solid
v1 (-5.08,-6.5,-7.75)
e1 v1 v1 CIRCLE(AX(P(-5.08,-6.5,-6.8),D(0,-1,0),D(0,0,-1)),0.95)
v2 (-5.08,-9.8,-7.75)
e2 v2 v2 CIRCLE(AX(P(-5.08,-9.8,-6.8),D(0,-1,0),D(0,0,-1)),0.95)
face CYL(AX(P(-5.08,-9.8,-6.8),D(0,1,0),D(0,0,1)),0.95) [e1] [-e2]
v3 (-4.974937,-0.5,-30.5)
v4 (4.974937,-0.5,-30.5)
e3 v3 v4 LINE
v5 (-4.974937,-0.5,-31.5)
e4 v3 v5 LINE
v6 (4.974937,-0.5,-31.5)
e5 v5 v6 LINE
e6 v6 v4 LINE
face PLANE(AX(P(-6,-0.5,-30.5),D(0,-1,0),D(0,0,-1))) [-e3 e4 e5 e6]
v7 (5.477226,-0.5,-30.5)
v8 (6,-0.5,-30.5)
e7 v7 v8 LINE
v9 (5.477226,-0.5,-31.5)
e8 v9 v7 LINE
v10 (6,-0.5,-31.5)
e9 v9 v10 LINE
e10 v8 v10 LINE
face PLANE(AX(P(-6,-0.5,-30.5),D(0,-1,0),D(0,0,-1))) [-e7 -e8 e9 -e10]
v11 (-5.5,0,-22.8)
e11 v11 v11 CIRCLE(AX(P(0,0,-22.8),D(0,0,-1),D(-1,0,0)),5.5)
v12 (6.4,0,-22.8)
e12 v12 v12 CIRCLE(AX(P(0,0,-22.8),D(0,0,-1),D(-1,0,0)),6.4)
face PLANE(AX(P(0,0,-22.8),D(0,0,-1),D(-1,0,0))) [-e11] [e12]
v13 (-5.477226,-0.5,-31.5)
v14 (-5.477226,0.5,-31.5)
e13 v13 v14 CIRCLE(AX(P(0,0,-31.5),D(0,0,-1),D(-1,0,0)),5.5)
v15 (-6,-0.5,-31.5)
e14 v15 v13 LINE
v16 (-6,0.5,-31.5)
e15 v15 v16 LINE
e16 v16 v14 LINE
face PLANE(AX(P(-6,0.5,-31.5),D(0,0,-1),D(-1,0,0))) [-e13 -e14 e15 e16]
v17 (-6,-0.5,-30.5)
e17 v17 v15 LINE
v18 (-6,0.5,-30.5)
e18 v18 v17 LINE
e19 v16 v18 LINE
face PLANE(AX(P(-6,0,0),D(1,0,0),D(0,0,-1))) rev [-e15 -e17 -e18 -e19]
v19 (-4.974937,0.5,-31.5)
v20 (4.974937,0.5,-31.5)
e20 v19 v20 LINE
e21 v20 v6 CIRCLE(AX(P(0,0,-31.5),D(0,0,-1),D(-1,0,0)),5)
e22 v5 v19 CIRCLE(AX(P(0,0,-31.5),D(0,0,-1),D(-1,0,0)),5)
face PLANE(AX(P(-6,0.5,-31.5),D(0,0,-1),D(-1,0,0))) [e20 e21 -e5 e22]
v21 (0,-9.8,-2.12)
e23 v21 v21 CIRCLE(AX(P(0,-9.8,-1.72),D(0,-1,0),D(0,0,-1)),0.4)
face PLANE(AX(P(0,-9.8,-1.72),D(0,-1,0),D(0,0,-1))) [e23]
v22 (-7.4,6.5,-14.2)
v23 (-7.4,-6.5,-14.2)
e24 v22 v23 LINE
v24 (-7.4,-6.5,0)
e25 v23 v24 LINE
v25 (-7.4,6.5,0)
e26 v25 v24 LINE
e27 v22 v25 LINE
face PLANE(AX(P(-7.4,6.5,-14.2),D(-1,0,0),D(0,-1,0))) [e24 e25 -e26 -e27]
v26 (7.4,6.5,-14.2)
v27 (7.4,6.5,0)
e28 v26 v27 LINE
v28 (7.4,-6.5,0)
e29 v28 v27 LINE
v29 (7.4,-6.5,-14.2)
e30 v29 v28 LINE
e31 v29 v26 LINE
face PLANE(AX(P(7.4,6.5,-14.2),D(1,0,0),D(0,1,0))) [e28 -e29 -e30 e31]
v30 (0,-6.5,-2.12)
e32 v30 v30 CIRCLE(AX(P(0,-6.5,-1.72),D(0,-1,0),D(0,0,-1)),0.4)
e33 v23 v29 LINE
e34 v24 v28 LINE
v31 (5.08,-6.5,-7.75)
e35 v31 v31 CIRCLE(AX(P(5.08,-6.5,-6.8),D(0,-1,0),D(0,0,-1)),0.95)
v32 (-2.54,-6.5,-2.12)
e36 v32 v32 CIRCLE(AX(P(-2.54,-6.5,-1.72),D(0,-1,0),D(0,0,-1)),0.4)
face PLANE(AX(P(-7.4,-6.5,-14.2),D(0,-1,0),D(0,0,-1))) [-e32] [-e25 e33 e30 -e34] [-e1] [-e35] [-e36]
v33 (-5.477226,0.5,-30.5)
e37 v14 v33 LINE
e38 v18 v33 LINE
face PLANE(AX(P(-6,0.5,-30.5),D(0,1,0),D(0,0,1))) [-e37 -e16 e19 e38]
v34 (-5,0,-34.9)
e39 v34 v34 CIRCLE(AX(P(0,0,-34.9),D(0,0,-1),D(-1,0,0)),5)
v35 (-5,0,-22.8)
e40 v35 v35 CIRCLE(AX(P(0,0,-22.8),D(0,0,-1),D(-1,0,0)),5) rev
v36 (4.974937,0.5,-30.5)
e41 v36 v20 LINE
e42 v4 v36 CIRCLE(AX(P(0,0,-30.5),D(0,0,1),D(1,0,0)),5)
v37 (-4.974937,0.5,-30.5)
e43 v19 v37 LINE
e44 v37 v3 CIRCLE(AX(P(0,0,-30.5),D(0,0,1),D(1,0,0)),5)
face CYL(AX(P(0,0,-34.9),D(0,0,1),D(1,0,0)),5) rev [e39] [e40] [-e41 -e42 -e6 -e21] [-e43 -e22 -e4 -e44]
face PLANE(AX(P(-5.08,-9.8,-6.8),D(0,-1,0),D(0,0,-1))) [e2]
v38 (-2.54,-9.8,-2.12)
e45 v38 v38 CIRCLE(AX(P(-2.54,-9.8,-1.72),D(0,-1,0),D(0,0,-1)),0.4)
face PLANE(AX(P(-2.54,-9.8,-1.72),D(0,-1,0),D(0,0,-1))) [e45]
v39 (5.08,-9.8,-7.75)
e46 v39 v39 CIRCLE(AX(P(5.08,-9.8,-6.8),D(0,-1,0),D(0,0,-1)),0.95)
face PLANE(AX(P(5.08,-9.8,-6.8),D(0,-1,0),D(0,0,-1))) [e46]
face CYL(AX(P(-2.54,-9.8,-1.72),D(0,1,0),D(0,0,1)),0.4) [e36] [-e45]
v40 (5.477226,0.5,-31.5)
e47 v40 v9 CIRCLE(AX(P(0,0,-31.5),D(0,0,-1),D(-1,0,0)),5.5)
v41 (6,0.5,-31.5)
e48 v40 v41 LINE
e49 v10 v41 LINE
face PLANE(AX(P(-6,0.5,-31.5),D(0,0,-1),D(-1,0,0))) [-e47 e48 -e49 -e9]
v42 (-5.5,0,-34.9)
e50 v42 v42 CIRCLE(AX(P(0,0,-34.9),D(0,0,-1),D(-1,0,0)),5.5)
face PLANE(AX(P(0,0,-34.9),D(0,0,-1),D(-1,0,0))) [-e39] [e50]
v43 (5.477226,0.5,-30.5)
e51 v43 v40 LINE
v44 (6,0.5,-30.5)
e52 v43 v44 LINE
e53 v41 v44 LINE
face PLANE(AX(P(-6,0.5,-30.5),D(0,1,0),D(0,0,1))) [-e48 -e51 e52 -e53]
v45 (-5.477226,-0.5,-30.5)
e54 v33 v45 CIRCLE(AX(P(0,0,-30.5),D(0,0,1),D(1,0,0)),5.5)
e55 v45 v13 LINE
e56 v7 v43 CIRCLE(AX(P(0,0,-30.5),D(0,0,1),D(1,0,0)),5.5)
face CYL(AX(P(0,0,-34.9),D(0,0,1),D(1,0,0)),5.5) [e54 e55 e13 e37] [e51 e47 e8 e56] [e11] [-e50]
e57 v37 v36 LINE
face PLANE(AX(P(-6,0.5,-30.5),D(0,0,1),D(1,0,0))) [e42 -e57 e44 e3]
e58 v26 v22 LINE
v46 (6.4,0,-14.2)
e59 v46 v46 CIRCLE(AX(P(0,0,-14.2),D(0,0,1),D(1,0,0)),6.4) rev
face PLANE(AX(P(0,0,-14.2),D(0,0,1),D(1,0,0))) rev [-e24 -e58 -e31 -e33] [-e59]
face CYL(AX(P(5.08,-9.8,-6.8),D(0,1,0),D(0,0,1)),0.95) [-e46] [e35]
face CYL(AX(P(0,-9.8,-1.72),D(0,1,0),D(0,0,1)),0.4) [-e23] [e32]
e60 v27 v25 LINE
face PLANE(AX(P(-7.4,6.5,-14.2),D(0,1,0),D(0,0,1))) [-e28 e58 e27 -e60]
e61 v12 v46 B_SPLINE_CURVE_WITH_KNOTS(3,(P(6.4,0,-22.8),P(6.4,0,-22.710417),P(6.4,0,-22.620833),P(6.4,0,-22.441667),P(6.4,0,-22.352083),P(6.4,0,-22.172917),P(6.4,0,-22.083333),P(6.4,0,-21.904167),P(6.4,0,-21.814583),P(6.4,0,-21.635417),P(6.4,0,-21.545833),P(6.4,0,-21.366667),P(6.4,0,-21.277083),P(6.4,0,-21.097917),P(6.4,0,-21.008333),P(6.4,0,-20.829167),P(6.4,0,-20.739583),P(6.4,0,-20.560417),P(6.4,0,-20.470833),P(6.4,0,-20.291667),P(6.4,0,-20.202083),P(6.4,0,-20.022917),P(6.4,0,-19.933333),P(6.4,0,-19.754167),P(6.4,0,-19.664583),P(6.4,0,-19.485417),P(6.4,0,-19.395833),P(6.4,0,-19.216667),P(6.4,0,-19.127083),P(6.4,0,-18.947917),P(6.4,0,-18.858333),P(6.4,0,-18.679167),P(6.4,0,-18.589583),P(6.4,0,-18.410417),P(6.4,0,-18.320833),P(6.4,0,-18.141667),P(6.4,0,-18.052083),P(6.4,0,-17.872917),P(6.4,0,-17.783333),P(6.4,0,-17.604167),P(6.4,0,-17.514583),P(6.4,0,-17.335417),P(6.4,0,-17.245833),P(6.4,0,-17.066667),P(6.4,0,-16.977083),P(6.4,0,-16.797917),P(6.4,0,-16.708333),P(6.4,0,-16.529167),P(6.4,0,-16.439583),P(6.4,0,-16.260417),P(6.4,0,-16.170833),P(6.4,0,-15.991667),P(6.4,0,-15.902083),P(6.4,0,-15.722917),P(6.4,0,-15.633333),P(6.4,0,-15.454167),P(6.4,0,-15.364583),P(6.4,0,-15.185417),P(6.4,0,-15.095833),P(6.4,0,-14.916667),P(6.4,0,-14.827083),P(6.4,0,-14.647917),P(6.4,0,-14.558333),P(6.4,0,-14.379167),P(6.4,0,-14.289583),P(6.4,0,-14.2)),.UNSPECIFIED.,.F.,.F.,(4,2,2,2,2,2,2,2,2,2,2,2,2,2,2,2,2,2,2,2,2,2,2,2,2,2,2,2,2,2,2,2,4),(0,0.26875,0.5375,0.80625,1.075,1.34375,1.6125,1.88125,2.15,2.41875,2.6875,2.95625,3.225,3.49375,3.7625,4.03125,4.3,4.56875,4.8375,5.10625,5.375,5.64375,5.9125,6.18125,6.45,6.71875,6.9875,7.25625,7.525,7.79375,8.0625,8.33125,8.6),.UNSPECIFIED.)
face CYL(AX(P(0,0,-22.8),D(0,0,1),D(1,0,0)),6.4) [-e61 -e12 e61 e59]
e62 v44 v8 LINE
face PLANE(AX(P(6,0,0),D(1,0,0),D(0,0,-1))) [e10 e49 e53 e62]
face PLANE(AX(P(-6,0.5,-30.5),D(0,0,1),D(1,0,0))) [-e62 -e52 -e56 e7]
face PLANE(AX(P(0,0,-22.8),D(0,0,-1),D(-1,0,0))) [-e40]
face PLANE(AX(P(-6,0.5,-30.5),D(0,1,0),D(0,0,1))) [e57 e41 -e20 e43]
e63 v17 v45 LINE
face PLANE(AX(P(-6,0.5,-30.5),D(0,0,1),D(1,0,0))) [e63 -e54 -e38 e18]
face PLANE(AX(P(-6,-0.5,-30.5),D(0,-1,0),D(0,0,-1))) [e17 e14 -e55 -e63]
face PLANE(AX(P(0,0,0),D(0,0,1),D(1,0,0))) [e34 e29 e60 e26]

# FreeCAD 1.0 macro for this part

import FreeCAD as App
import Part
import Sketcher
Q = App.Units.Quantity


def add_polygon(sketch, points):
    """Adds a closed chain of lines whose ends are joined by coincident constraints."""
    first, n = sketch.GeometryCount, len(points)
    for a, b in zip(points, points[1:] + points[:1]):
        sketch.addGeometry(Part.LineSegment(App.Vector(*a, 0), App.Vector(*b, 0)), False)
    for i in range(n):
        sketch.addConstraint(Sketcher.Constraint("Coincident", first + i, 2, first + (i + 1) % n, 1))

doc = App.newDocument("Part")
body = doc.addObject("PartDesign::Body", "Body")

sketch1 = doc.addObject("Sketcher::SketchObject", "Sketch")
body.addObject(sketch1)
sketch1.AttachmentSupport = (doc.XY_Plane, [""])
sketch1.MapMode = "FlatFace"
add_polygon(sketch1, [(-7, 6), (-7, -6), (7, -6), (7, 6)])
sketch1.addConstraint([
    Sketcher.Constraint("Vertical", 0),
    Sketcher.Constraint("Horizontal", 1),
    Sketcher.Constraint("Vertical", 2),
    Sketcher.Constraint("Horizontal", 3),
    Sketcher.Constraint("Symmetric", 0, 2, 2, 2, -1, 1),
    Sketcher.Constraint("DistanceY", 0, 2, 0, 1, Q("13 mm")),
    Sketcher.Constraint("DistanceX", 1, 1, 1, 2, Q("14.8 mm")),
])
pad1 = doc.addObject("PartDesign::Pad", "Pad")
body.addObject(pad1)
pad1.Profile = sketch1
pad1.Length = 14.2
pad1.Reversed = True

sketch2 = doc.addObject("Sketcher::SketchObject", "Sketch001")
body.addObject(sketch2)
sketch2.AttachmentSupport = (doc.XY_Plane, [""])
sketch2.MapMode = "FlatFace"
sketch2.AttachmentOffset = App.Placement(App.Vector(0, 0, -14.2), App.Rotation())
sketch2.addGeometry(Part.Circle(App.Vector(0, 0, 0), App.Vector(0, 0, 1), 6), False)
sketch2.addConstraint([
    Sketcher.Constraint("Coincident", 0, 3, -1, 1),
    Sketcher.Constraint("Diameter", 0, Q("12.8 mm")),
])
pad2 = doc.addObject("PartDesign::Pad", "Pad001")
body.addObject(pad2)
pad2.Profile = sketch2
pad2.Length = 8.6
pad2.Reversed = True

sketch3 = doc.addObject("Sketcher::SketchObject", "Sketch002")
body.addObject(sketch3)
sketch3.AttachmentSupport = (doc.XY_Plane, [""])
sketch3.MapMode = "FlatFace"
sketch3.AttachmentOffset = App.Placement(App.Vector(0, 0, -22.8), App.Rotation())
sketch3.addGeometry([
    Part.Circle(App.Vector(0, 0, 0), App.Vector(0, 0, 1), 6),
    Part.Circle(App.Vector(0, 0, 0), App.Vector(0, 0, 1), 5),
], False)
sketch3.addConstraint([
    Sketcher.Constraint("Coincident", 0, 3, -1, 1),
    Sketcher.Constraint("Coincident", 1, 3, -1, 1),
    Sketcher.Constraint("Diameter", 0, Q("11 mm")),
    Sketcher.Constraint("Diameter", 1, Q("10 mm")),
])
pad3 = doc.addObject("PartDesign::Pad", "Pad002")
body.addObject(pad3)
pad3.Profile = sketch3
pad3.Length = 12.1
pad3.Reversed = True

sketch4 = doc.addObject("Sketcher::SketchObject", "Sketch003")
body.addObject(sketch4)
sketch4.AttachmentSupport = (doc.YZ_Plane, [""])
sketch4.MapMode = "FlatFace"
add_polygon(sketch4, [(0.5, -30.5), (-0.5, -30.5), (-0.5, -31.5), (0.5, -31.5)])
sketch4.addConstraint([
    Sketcher.Constraint("Horizontal", 0),
    Sketcher.Constraint("Vertical", 1),
    Sketcher.Constraint("Horizontal", 2),
    Sketcher.Constraint("Vertical", 3),
    Sketcher.Constraint("Equal", 2, 1),
    Sketcher.Constraint("DistanceX", 0, 2, 0, 1, Q("1 mm")),
    Sketcher.Constraint("DistanceX", 0, 2, -1, 1, Q("0.5 mm")),
    Sketcher.Constraint("DistanceY", 0, 2, -1, 1, Q("30.5 mm")),
])
pad4 = doc.addObject("PartDesign::Pad", "Pad003")
body.addObject(pad4)
pad4.Profile = sketch4
pad4.Type = "TwoLengths"
pad4.Length = 6
pad4.Length2 = 6

sketch5 = doc.addObject("Sketcher::SketchObject", "Sketch004")
body.addObject(sketch5)
sketch5.AttachmentSupport = (doc.XZ_Plane, [""])
sketch5.MapMode = "FlatFace"
sketch5.AttachmentOffset = App.Placement(App.Vector(0, 0, 6.5), App.Rotation())
sketch5.addGeometry([
    Part.Circle(App.Vector(5.08, -6.8, 0), App.Vector(0, 0, 1), 0.95),
    Part.Circle(App.Vector(-5.08, -6.8, 0), App.Vector(0, 0, 1), 0.95),
    Part.Circle(App.Vector(0, -1.72, 0), App.Vector(0, 0, 1), 0.4),
    Part.Circle(App.Vector(-2.54, -1.72, 0), App.Vector(0, 0, 1), 0.4),
], False)
sketch5.addConstraint([
    Sketcher.Constraint("Equal", 0, 1),
    Sketcher.Constraint("Equal", 2, 3),
    Sketcher.Constraint("Symmetric", 0, 3, 1, 3, -2),
    Sketcher.Constraint("PointOnObject", 2, 3, -2),
    Sketcher.Constraint("Horizontal", 2, 3, 3, 3),
    Sketcher.Constraint("Diameter", 0, Q("1.9 mm")),
    Sketcher.Constraint("Diameter", 2, Q("0.8 mm")),
    Sketcher.Constraint("DistanceY", 0, 3, -1, 1, Q("6.8 mm")),
    Sketcher.Constraint("DistanceX", -1, 1, 0, 3, Q("5.08 mm")),
    Sketcher.Constraint("DistanceY", 2, 3, -1, 1, Q("1.72 mm")),
    Sketcher.Constraint("DistanceX", 3, 3, -1, 1, Q("2.54 mm")),
])
pad5 = doc.addObject("PartDesign::Pad", "Pad004")
body.addObject(pad5)
pad5.Profile = sketch5
pad5.Length = 3.3

doc.recompute()
